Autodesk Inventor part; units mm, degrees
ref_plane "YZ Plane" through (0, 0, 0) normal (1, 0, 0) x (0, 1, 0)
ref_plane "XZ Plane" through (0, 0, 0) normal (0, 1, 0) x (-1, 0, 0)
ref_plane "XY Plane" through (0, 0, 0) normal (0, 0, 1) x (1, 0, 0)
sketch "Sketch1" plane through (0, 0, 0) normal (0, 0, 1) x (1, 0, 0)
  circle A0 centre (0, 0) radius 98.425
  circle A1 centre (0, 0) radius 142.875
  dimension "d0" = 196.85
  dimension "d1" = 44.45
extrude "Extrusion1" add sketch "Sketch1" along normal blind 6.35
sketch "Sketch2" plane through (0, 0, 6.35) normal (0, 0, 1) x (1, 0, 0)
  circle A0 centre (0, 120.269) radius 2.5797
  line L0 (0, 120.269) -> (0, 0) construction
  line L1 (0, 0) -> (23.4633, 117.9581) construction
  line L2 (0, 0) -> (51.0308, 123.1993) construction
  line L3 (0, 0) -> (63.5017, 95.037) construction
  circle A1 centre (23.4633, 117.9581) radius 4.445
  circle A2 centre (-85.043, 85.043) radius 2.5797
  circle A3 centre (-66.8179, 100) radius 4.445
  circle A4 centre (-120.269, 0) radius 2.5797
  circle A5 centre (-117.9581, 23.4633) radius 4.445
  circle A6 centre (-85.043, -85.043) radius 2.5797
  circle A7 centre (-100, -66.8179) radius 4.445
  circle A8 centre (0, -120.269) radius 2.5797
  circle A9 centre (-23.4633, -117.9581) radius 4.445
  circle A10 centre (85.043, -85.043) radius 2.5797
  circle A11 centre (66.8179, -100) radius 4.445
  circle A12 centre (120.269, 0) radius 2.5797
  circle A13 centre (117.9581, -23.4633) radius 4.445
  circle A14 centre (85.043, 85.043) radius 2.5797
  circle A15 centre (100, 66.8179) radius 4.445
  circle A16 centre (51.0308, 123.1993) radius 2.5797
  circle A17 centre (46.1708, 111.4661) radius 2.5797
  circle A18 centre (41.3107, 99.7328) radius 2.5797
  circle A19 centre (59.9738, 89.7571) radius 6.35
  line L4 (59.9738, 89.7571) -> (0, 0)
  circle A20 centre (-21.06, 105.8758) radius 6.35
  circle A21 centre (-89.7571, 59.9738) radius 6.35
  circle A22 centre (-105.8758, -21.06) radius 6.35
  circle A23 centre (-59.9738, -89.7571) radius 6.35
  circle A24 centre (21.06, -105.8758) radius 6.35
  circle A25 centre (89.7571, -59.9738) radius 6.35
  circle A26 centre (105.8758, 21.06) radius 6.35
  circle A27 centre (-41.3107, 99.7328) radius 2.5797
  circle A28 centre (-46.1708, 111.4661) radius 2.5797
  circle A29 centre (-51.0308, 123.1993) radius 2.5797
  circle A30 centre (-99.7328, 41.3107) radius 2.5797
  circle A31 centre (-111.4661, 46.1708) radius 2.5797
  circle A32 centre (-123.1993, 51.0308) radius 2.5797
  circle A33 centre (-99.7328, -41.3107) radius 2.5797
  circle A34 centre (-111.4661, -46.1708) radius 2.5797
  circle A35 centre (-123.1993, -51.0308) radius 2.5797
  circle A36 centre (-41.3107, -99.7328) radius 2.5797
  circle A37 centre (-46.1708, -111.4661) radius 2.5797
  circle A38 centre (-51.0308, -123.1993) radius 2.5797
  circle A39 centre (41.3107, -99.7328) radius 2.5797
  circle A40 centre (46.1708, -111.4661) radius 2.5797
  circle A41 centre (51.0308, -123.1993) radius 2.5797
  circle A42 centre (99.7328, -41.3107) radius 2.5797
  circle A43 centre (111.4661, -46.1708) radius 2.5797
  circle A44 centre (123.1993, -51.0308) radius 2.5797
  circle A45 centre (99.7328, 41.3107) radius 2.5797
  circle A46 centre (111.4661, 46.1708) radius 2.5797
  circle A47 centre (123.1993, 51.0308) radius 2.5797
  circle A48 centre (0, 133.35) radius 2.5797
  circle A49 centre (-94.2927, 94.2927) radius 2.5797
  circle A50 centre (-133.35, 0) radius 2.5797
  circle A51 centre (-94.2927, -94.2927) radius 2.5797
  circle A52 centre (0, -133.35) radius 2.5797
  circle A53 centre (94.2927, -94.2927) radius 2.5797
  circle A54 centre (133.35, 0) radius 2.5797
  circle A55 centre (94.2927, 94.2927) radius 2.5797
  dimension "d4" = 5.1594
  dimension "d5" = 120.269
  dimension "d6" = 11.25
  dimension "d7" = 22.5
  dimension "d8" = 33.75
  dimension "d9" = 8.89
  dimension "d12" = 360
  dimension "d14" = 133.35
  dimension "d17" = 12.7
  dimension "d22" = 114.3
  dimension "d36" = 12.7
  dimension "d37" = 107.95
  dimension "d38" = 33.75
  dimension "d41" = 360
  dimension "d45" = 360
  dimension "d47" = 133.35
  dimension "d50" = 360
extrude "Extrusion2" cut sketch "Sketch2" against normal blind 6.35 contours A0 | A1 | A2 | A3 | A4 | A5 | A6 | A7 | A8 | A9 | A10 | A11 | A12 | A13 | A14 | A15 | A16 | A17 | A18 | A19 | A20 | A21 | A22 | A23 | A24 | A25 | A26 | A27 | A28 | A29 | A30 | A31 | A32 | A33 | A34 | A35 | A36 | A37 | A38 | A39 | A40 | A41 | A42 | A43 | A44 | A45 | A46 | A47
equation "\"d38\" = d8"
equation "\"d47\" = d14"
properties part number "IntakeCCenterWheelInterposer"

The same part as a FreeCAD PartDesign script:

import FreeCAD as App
import Part
import Sketcher

V = App.Vector
Q = App.Units.Quantity

doc = App.newDocument("Part")
body = doc.addObject("PartDesign::Body", "Body")

sketch1 = body.newObject("Sketcher::SketchObject", "Sketch")
sketch1.AttachmentSupport = (doc.getObject("XY_Plane"), [""])
sketch1.MapMode = "FlatFace"
sketch1.addGeometry([
    Part.Circle(V(0, 0, 0), V(0, 0, 1), 143),
    Part.Circle(V(0, 0, 0), V(0, 0, 1), 98),
], False)
sketch1.addConstraint([
    Sketcher.Constraint("Coincident", 0, 3, -1, 1),
    Sketcher.Constraint("Coincident", 1, 3, -1, 1),
    Sketcher.Constraint("Diameter", 1, Q("7.75 in")),
    Sketcher.Constraint("Diameter", 0, Q("11.25 in")),
])
pad1 = body.newObject("PartDesign::Pad", "Pad")
pad1.Profile = sketch1
pad1.Length = Q("0.25 in")

sketch2 = body.newObject("Sketcher::SketchObject", "Sketch001")
sketch2.AttachmentSupport = (doc.getObject("XY_Plane"), [""])
sketch2.MapMode = "FlatFace"
sketch2.AttachmentOffset = App.Placement(V(0, 0, 0.25 * 25.4), App.Rotation())
sketch2.addGeometry([
    Part.Circle(V(0, 120.3, 0), V(0, 0, 1), 2.6),
    Part.Circle(V(23.5, 118, 0), V(0, 0, 1), 4.4),
    Part.Circle(V(-85, 85, 0), V(0, 0, 1), 2.6),
    Part.Circle(V(-66.8, 100, 0), V(0, 0, 1), 4.4),
    Part.Circle(V(-120.3, 0, 0), V(0, 0, 1), 2.6),
    Part.Circle(V(-118, 23.5, 0), V(0, 0, 1), 4.4),
    Part.Circle(V(-85, -85, 0), V(0, 0, 1), 2.6),
    Part.Circle(V(-100, -66.8, 0), V(0, 0, 1), 4.4),
    Part.Circle(V(0, -120.3, 0), V(0, 0, 1), 2.6),
    Part.Circle(V(-23.5, -118, 0), V(0, 0, 1), 4.4),
    Part.Circle(V(85, -85, 0), V(0, 0, 1), 2.6),
    Part.Circle(V(66.8, -100, 0), V(0, 0, 1), 4.4),
    Part.Circle(V(120.3, 0, 0), V(0, 0, 1), 2.6),
    Part.Circle(V(118, -23.5, 0), V(0, 0, 1), 4.4),
    Part.Circle(V(85, 85, 0), V(0, 0, 1), 2.6),
    Part.Circle(V(100, 66.8, 0), V(0, 0, 1), 4.4),
    Part.Circle(V(51, 123.2, 0), V(0, 0, 1), 2.6),
    Part.Circle(V(46.2, 111.5, 0), V(0, 0, 1), 2.6),
    Part.Circle(V(41.3, 99.7, 0), V(0, 0, 1), 2.6),
    Part.Circle(V(60, 89.8, 0), V(0, 0, 1), 6.3),
    Part.Circle(V(-21.1, 105.9, 0), V(0, 0, 1), 6.3),
    Part.Circle(V(-89.8, 60, 0), V(0, 0, 1), 6.3),
    Part.Circle(V(-105.9, -21.1, 0), V(0, 0, 1), 6.3),
    Part.Circle(V(-60, -89.8, 0), V(0, 0, 1), 6.3),
    Part.Circle(V(21.1, -105.9, 0), V(0, 0, 1), 6.3),
    Part.Circle(V(89.8, -60, 0), V(0, 0, 1), 6.3),
    Part.Circle(V(105.9, 21.1, 0), V(0, 0, 1), 6.3),
    Part.Circle(V(-41.3, 99.7, 0), V(0, 0, 1), 2.6),
    Part.Circle(V(-46.2, 111.5, 0), V(0, 0, 1), 2.6),
    Part.Circle(V(-51, 123.2, 0), V(0, 0, 1), 2.6),
    Part.Circle(V(-99.7, 41.3, 0), V(0, 0, 1), 2.6),
    Part.Circle(V(-111.5, 46.2, 0), V(0, 0, 1), 2.6),
    Part.Circle(V(-123.2, 51, 0), V(0, 0, 1), 2.6),
    Part.Circle(V(-99.7, -41.3, 0), V(0, 0, 1), 2.6),
    Part.Circle(V(-111.5, -46.2, 0), V(0, 0, 1), 2.6),
    Part.Circle(V(-123.2, -51, 0), V(0, 0, 1), 2.6),
    Part.Circle(V(-41.3, -99.7, 0), V(0, 0, 1), 2.6),
    Part.Circle(V(-46.2, -111.5, 0), V(0, 0, 1), 2.6),
    Part.Circle(V(-51, -123.2, 0), V(0, 0, 1), 2.6),
    Part.Circle(V(41.3, -99.7, 0), V(0, 0, 1), 2.6),
    Part.Circle(V(46.2, -111.5, 0), V(0, 0, 1), 2.6),
    Part.Circle(V(51, -123.2, 0), V(0, 0, 1), 2.6),
    Part.Circle(V(99.7, -41.3, 0), V(0, 0, 1), 2.6),
    Part.Circle(V(111.5, -46.2, 0), V(0, 0, 1), 2.6),
    Part.Circle(V(123.2, -51, 0), V(0, 0, 1), 2.6),
    Part.Circle(V(99.7, 41.3, 0), V(0, 0, 1), 2.6),
    Part.Circle(V(111.5, 46.2, 0), V(0, 0, 1), 2.6),
    Part.Circle(V(123.2, 51, 0), V(0, 0, 1), 2.6),
], False)
sketch2.addConstraint([
    Sketcher.Constraint("Equal", 0, 2),
    Sketcher.Constraint("Equal", 1, 3),
    Sketcher.Constraint("Equal", 2, 4),
    Sketcher.Constraint("Equal", 3, 5),
    Sketcher.Constraint("Equal", 4, 6),
    Sketcher.Constraint("Equal", 5, 7),
    Sketcher.Constraint("Equal", 6, 8),
    Sketcher.Constraint("Equal", 7, 9),
    Sketcher.Constraint("Equal", 8, 10),
    Sketcher.Constraint("Equal", 9, 11),
    Sketcher.Constraint("Equal", 10, 12),
    Sketcher.Constraint("Equal", 11, 13),
    Sketcher.Constraint("Equal", 12, 14),
    Sketcher.Constraint("Equal", 13, 15),
    Sketcher.Constraint("Equal", 14, 16),
    Sketcher.Constraint("Equal", 16, 17),
    Sketcher.Constraint("Equal", 17, 18),
    Sketcher.Constraint("Equal", 19, 20),
    Sketcher.Constraint("Equal", 20, 21),
    Sketcher.Constraint("Equal", 21, 22),
    Sketcher.Constraint("Equal", 22, 23),
    Sketcher.Constraint("Equal", 23, 24),
    Sketcher.Constraint("Equal", 24, 25),
    Sketcher.Constraint("Equal", 25, 26),
    Sketcher.Constraint("Equal", 18, 27),
    Sketcher.Constraint("Equal", 27, 28),
    Sketcher.Constraint("Equal", 28, 29),
    Sketcher.Constraint("Equal", 29, 30),
    Sketcher.Constraint("Equal", 30, 31),
    Sketcher.Constraint("Equal", 31, 32),
    Sketcher.Constraint("Equal", 32, 33),
    Sketcher.Constraint("Equal", 33, 34),
    Sketcher.Constraint("Equal", 34, 35),
    Sketcher.Constraint("Equal", 35, 36),
    Sketcher.Constraint("Equal", 36, 37),
    Sketcher.Constraint("Equal", 37, 38),
    Sketcher.Constraint("Equal", 38, 39),
    Sketcher.Constraint("Equal", 39, 40),
    Sketcher.Constraint("Equal", 40, 41),
    Sketcher.Constraint("Equal", 41, 42),
    Sketcher.Constraint("Equal", 42, 43),
    Sketcher.Constraint("Equal", 43, 44),
    Sketcher.Constraint("Equal", 44, 45),
    Sketcher.Constraint("Equal", 45, 46),
    Sketcher.Constraint("Equal", 46, 47),
    Sketcher.Constraint("Symmetric", 0, 3, 8, 3, -1, 1),
    Sketcher.Constraint("Symmetric", 1, 3, 9, 3, -1, 1),
    Sketcher.Constraint("Symmetric", 2, 3, 10, 3, -1, 1),
    Sketcher.Constraint("Symmetric", 3, 3, 11, 3, -1, 1),
    Sketcher.Constraint("Symmetric", 4, 3, 12, 3, -1, 1),
    Sketcher.Constraint("Symmetric", 5, 3, 13, 3, -1, 1),
    Sketcher.Constraint("Symmetric", 6, 3, 14, 3, -1, 1),
    Sketcher.Constraint("Symmetric", 7, 3, 15, 3, -1, 1),
    Sketcher.Constraint("Symmetric", 19, 3, 23, 3, -1, 1),
    Sketcher.Constraint("Symmetric", 20, 3, 24, 3, -1, 1),
    Sketcher.Constraint("Symmetric", 21, 3, 25, 3, -1, 1),
    Sketcher.Constraint("Symmetric", 22, 3, 26, 3, -1, 1),
    Sketcher.Constraint("Symmetric", 18, 3, 36, 3, -1, 1),
    Sketcher.Constraint("Symmetric", 17, 3, 37, 3, -1, 1),
    Sketcher.Constraint("Symmetric", 16, 3, 38, 3, -1, 1),
    Sketcher.Constraint("Symmetric", 27, 3, 39, 3, -1, 1),
    Sketcher.Constraint("Symmetric", 28, 3, 40, 3, -1, 1),
    Sketcher.Constraint("Symmetric", 29, 3, 41, 3, -1, 1),
    Sketcher.Constraint("Symmetric", 30, 3, 42, 3, -1, 1),
    Sketcher.Constraint("Symmetric", 31, 3, 43, 3, -1, 1),
    Sketcher.Constraint("Symmetric", 32, 3, 44, 3, -1, 1),
    Sketcher.Constraint("Symmetric", 33, 3, 45, 3, -1, 1),
    Sketcher.Constraint("Symmetric", 34, 3, 46, 3, -1, 1),
    Sketcher.Constraint("Symmetric", 35, 3, 47, 3, -1, 1),
    Sketcher.Constraint("Symmetric", 6, 3, 10, 3, -2),
    Sketcher.Constraint("Symmetric", 18, 3, 27, 3, -2),
    Sketcher.Constraint("Symmetric", 17, 3, 28, 3, -2),
    Sketcher.Constraint("Symmetric", 16, 3, 29, 3, -2),
    Sketcher.Constraint("Symmetric", 33, 3, 42, 3, -2),
    Sketcher.Constraint("Symmetric", 34, 3, 43, 3, -2),
    Sketcher.Constraint("Symmetric", 35, 3, 44, 3, -2),
    Sketcher.Constraint("PointOnObject", 0, 3, -2),
    Sketcher.Constraint("PointOnObject", 4, 3, -1),
    Sketcher.Constraint("Diameter", 19, Q("0.5 in")),
    Sketcher.Constraint("Diameter", 1, Q("0.35 in")),
    Sketcher.Constraint("Diameter", 0, Q("0.203126 in")),
    Sketcher.Constraint("DistanceY", -1, 1, 0, 3, Q("4.735 in")),
    Sketcher.Constraint("DistanceX", 4, 3, -1, 1, Q("4.735 in")),
    Sketcher.Constraint("DistanceY", -1, 1, 3, 3, Q("3.937 in")),
    Sketcher.Constraint("DistanceX", 7, 3, -1, 1, Q("3.937 in")),
    Sketcher.Constraint("DistanceY", 3, 3, 1, 3, Q("0.707 in")),
    Sketcher.Constraint("DistanceX", 5, 3, 7, 3, Q("0.707 in")),
    Sketcher.Constraint("DistanceX", 1, 3, 17, 3, Q("0.894 in")),
    Sketcher.Constraint("DistanceY", 5, 3, 31, 3, Q("0.894 in")),
    Sketcher.Constraint("DistanceX", -1, 1, 18, 3, Q("1.6264 in")),
    Sketcher.Constraint("DistanceY", -1, 1, 18, 3, Q("3.9265 in")),
    Sketcher.Constraint("DistanceX", 30, 3, -1, 1, Q("3.9265 in")),
    Sketcher.Constraint("DistanceY", -1, 1, 30, 3, Q("1.6264 in")),
    Sketcher.Constraint("DistanceX", 2, 3, 1, 3, Q("4.2719 in")),
    Sketcher.Constraint("DistanceY", 5, 3, 2, 3, Q("2.4244 in")),
    Sketcher.Constraint("DistanceX", 5, 3, 3, 3, Q("2.0134 in")),
    Sketcher.Constraint("DistanceY", 6, 3, 5, 3, Q("4.2719 in")),
    Sketcher.Constraint("DistanceX", 6, 3, 9, 3, Q("2.4244 in")),
    Sketcher.Constraint("DistanceY", 9, 3, 7, 3, Q("2.0134 in")),
    Sketcher.Constraint("DistanceY", 17, 3, 1, 3, Q("0.2556 in")),
    Sketcher.Constraint("DistanceY", 14, 3, 19, 3, Q("0.1856 in")),
    Sketcher.Constraint("DistanceX", 3, 3, 20, 3, Q("1.8015 in")),
    Sketcher.Constraint("DistanceY", 2, 3, 20, 3, Q("0.8202 in")),
    Sketcher.Constraint("DistanceX", 21, 3, 2, 3, Q("0.1856 in")),
    Sketcher.Constraint("DistanceY", 7, 3, 22, 3, Q("1.8015 in")),
    Sketcher.Constraint("DistanceX", 22, 3, 6, 3, Q("0.8202 in")),
    Sketcher.Constraint("DistanceY", 22, 3, 21, 3, Q("3.1903 in")),
    Sketcher.Constraint("DistanceX", 23, 3, 24, 3, Q("3.1903 in")),
    Sketcher.Constraint("DistanceX", 5, 3, 31, 3, Q("0.2556 in")),
    Sketcher.Constraint("DistanceX", -1, 1, 16, 3, 51.0308),
    Sketcher.Constraint("DistanceY", -1, 1, 16, 3, 123.1993),
    Sketcher.Constraint("DistanceX", 32, 3, -1, 1, 123.1993),
    Sketcher.Constraint("DistanceY", -1, 1, 32, 3, 51.0308),
])
pocket1 = body.newObject("PartDesign::Pocket", "Pocket")
pocket1.Profile = sketch2
pocket1.Length = Q("0.25 in")

doc.recompute()
